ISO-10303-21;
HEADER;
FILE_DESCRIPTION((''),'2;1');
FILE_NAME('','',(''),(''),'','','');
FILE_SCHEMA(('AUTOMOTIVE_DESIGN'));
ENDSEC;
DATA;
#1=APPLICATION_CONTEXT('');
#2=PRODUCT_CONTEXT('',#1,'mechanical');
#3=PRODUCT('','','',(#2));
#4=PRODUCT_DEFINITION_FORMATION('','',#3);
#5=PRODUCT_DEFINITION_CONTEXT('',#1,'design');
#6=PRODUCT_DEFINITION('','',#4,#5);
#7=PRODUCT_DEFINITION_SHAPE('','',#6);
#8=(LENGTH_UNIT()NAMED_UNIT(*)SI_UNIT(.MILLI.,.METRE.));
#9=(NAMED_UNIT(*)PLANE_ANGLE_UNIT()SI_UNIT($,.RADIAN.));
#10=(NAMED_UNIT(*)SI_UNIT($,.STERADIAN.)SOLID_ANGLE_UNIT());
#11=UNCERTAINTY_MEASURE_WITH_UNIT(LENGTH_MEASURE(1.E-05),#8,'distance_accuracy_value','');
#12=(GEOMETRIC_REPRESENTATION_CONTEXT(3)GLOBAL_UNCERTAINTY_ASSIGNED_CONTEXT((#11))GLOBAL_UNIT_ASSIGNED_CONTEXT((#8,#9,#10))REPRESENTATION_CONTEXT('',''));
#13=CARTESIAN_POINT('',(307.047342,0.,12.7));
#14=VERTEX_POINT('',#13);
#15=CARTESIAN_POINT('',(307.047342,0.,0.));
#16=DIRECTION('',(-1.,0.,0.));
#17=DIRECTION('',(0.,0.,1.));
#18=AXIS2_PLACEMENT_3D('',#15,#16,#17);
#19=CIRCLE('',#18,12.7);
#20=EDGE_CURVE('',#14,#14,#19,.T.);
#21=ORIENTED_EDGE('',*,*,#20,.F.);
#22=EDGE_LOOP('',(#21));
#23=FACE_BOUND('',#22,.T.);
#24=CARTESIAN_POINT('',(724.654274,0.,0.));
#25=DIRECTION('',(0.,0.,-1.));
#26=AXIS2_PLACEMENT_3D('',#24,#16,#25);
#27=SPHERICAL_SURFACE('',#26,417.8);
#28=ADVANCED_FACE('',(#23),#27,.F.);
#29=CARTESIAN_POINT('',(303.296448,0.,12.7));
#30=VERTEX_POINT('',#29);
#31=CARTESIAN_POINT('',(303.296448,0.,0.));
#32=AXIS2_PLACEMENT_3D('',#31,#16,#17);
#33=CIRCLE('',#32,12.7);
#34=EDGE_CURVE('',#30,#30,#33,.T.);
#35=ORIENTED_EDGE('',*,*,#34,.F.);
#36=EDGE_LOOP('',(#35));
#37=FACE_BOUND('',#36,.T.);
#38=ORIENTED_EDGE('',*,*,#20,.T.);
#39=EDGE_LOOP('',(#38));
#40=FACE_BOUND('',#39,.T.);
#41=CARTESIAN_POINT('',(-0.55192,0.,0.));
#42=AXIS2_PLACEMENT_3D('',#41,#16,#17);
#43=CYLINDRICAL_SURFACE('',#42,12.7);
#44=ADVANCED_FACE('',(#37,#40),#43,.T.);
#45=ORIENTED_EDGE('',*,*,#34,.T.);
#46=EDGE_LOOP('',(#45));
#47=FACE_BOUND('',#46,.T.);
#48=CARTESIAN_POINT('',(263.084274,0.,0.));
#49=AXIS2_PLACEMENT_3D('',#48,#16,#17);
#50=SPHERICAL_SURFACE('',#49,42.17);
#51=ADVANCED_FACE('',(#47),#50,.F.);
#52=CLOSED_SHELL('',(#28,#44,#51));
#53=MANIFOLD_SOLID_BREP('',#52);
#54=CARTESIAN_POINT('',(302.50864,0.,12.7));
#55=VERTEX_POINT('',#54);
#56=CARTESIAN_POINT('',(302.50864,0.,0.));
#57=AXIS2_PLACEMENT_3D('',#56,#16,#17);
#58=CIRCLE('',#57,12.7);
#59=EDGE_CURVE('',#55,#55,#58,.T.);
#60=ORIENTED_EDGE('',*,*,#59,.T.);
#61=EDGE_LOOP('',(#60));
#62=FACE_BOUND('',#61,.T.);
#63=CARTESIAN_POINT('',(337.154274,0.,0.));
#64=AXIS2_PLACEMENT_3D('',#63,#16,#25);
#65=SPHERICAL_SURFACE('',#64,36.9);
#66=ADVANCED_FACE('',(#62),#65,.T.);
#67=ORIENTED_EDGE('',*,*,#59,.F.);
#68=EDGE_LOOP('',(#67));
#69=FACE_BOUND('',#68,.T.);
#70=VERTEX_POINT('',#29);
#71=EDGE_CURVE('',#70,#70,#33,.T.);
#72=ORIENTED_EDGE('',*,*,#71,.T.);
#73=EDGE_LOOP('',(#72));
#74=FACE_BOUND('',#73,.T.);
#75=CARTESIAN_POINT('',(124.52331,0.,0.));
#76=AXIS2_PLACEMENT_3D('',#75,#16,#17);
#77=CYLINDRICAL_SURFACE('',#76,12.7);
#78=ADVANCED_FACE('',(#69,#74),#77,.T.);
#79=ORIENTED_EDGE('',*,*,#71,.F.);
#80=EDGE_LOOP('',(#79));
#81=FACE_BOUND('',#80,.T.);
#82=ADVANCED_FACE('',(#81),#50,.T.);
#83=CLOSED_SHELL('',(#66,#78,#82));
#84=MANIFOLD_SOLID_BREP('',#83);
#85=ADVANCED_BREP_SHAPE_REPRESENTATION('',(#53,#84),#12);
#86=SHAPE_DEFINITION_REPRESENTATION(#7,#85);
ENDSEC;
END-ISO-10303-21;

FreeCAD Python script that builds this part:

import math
import FreeCAD as App
import Part
import Sketcher
from FreeCAD import Vector
Q = App.Units.Quantity

doc = App.newDocument("Part")
body = doc.addObject("PartDesign::Body", "Body")

# Sketch on XZ plane
sketch1 = body.newObject("Sketcher::SketchObject", "Sketch")
sketch1.AttachmentSupport = (doc.getObject("XZ_Plane"), [""])
sketch1.MapMode = "FlatFace"
sketch1.addGeometry([
    Part.ArcOfCircle(Part.Circle(Vector(337.2, 0, 0), Vector(0, 0, 1), 36.9), math.radians(-180), math.radians(-160)),
    Part.LineSegment(Vector(300.3, 0, 0), Vector(305.3, 0, 0)),
    Part.ArcOfCircle(Part.Circle(Vector(263.1, 0, 0), Vector(0, 0, 1), 42.2), math.radians(-17.53), math.radians(0)),
    Part.LineSegment(Vector(303.3, -12.7, 0), Vector(302.5, -12.7, 0)),
], False)
sketch1.addConstraint([
    Sketcher.Constraint("Coincident", 0, 1, 1, 1),
    Sketcher.Constraint("Coincident", 1, 2, 2, 2),
    Sketcher.Constraint("Coincident", 2, 1, 3, 1),
    Sketcher.Constraint("Coincident", 3, 2, 0, 2),
    Sketcher.Constraint("Horizontal", 1),
    Sketcher.Constraint("Horizontal", 3),
    Sketcher.Constraint("PointOnObject", 0, 3, -1),
    Sketcher.Constraint("PointOnObject", 2, 3, -1),
    Sketcher.Constraint("PointOnObject", 0, 1, -1),
    Sketcher.Constraint("Radius", 0, Q("36.9 mm")),
    Sketcher.Constraint("DistanceX", 1, 1, 1, 2, Q("5 mm")),
    Sketcher.Constraint("Radius", 2, Q("42.17 mm")),
    Sketcher.Constraint("DistanceY", 2, 1, -1, 1, Q("12.7 mm")),
    Sketcher.Constraint("DistanceX", -1, 1, 2, 1, Q("303.296448 mm")),
])
revolution = body.newObject("PartDesign::Revolution", "Revolution")
revolution.Profile = sketch1
revolution.ReferenceAxis = (sketch1, ["H_Axis"])
revolution.Angle = 360
body2 = doc.addObject("PartDesign::Body", "Body001")

# Sketch on XZ plane
sketch2 = body2.newObject("Sketcher::SketchObject", "Sketch001")
sketch2.AttachmentSupport = (doc.getObject("XZ_Plane001"), [""])
sketch2.MapMode = "FlatFace"
sketch2.addGeometry([
    Part.LineSegment(Vector(307, -12.7, 0), Vector(303.3, -12.7, 0)),
    Part.ArcOfCircle(Part.Circle(Vector(263.1, 0, 0), Vector(0, 0, 1), 42.2), math.radians(-17.53), math.radians(0)),
    Part.LineSegment(Vector(305.3, 0, 0), Vector(306.9, 0, 0)),
    Part.ArcOfCircle(Part.Circle(Vector(724.7, 0, 0), Vector(0, 0, 1), 417.8), math.radians(180), math.radians(181.74)),
], False)
sketch2.addConstraint([
    Sketcher.Constraint("Coincident", 0, 2, 1, 1),
    Sketcher.Constraint("Coincident", 1, 2, 2, 1),
    Sketcher.Constraint("Coincident", 2, 2, 3, 1),
    Sketcher.Constraint("Coincident", 3, 2, 0, 1),
    Sketcher.Constraint("Horizontal", 0),
    Sketcher.Constraint("Horizontal", 2),
    Sketcher.Constraint("PointOnObject", 1, 3, -1),
    Sketcher.Constraint("PointOnObject", 3, 3, -1),
    Sketcher.Constraint("PointOnObject", 1, 2, -1),
    Sketcher.Constraint("Radius", 1, Q("42.17 mm")),
    Sketcher.Constraint("DistanceX", 2, 1, 2, 2, Q("1.6 mm")),
    Sketcher.Constraint("DistanceY", 0, 2, -1, 1, Q("12.7 mm")),
    Sketcher.Constraint("Radius", 3, Q("417.799997 mm")),
    Sketcher.Constraint("DistanceX", -1, 1, 3, 3, Q("724.654272 mm")),
])
revolution2 = body2.newObject("PartDesign::Revolution", "Revolution001")
revolution2.Profile = sketch2
revolution2.ReferenceAxis = (sketch2, ["H_Axis"])
revolution2.Angle = 360

doc.recompute()
